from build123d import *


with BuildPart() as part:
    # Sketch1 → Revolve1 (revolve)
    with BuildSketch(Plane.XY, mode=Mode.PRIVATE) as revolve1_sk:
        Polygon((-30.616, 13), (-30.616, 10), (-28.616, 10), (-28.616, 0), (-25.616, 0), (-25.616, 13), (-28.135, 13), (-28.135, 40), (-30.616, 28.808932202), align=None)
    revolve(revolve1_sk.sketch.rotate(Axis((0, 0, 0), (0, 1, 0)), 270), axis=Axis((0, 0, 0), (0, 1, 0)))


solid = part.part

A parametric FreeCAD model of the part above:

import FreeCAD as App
import Part
import Sketcher
from FreeCAD import Vector
Q = App.Units.Quantity

doc = App.newDocument("Part")
params = doc.addObject("Spreadsheet::Sheet", "Params")
for row, (alias, value) in enumerate([
    ("sketch1_width", "2 mm"),
    ("sketch1_width2", "3 mm"),
    ("sketch1_height", "10 mm"),
    ("sketch1_height2", "13 mm"),
    ("sketch1_height3", "27 mm"),
    ("revolution_angle", "360 deg"),
], start=1):
    params.set(f"A{row}", alias)
    params.set(f"B{row}", "=" + value)
    params.setAlias(f"B{row}", alias)

body = doc.addObject("PartDesign::Body", "Body")

sketch1 = doc.addObject("Sketcher::SketchObject", "Sketch")
body.addObject(sketch1)
sketch1.AttachmentSupport = (doc.XY_Plane, [""])
sketch1.MapMode = "FlatFace"
sketch1.addGeometry(Part.LineSegment(Vector(-30.616, 10, 0), Vector(-28.616, 10, 0)), False)
sketch1.addGeometry(Part.LineSegment(Vector(-28.616, 10, 0), Vector(-28.616, 0, 0)), False)
sketch1.addGeometry(Part.LineSegment(Vector(-28.616, 0, 0), Vector(-25.616, 0, 0)), False)
sketch1.addGeometry(Part.LineSegment(Vector(-25.616, 0, 0), Vector(-25.616, 13, 0)), False)
sketch1.addGeometry(Part.LineSegment(Vector(-25.616, 13, 0), Vector(-28.135, 13, 0)), False)
sketch1.addGeometry(Part.LineSegment(Vector(-28.135, 13, 0), Vector(-28.135, 40, 0)), False)
sketch1.addGeometry(Part.LineSegment(Vector(-28.135, 40, 0), Vector(-30.616, 28.808932, 0)), False)
sketch1.addGeometry(Part.LineSegment(Vector(-30.616, 28.808932, 0), Vector(-30.616, 10, 0)), False)
sketch1.addConstraint(Sketcher.Constraint("Coincident", 0, 2, 1, 1))
sketch1.addConstraint(Sketcher.Constraint("Coincident", 1, 2, 2, 1))
sketch1.addConstraint(Sketcher.Constraint("Coincident", 2, 2, 3, 1))
sketch1.addConstraint(Sketcher.Constraint("Coincident", 3, 2, 4, 1))
sketch1.addConstraint(Sketcher.Constraint("Coincident", 4, 2, 5, 1))
sketch1.addConstraint(Sketcher.Constraint("Coincident", 5, 2, 6, 1))
sketch1.addConstraint(Sketcher.Constraint("Coincident", 6, 2, 7, 1))
sketch1.addConstraint(Sketcher.Constraint("Coincident", 7, 2, 0, 1))
sketch1.addConstraint(Sketcher.Constraint("Horizontal", 0))
sketch1.addConstraint(Sketcher.Constraint("Vertical", 1))
sketch1.addConstraint(Sketcher.Constraint("Horizontal", 2))
sketch1.addConstraint(Sketcher.Constraint("Vertical", 3))
sketch1.addConstraint(Sketcher.Constraint("Horizontal", 4))
sketch1.addConstraint(Sketcher.Constraint("Vertical", 5))
sketch1.addConstraint(Sketcher.Constraint("Vertical", 7))
sketch1.addConstraint(Sketcher.Constraint("PointOnObject", 1, 2, -1))
sketch1.addConstraint(Sketcher.Constraint("DistanceX", 0, 1, 0, 2, Q("2 mm")))
sketch1.addConstraint(Sketcher.Constraint("DistanceX", 2, 1, 2, 2, Q("3 mm")))
sketch1.addConstraint(Sketcher.Constraint("DistanceY", 1, 2, 1, 1, Q("10 mm")))
sketch1.addConstraint(Sketcher.Constraint("DistanceY", 3, 1, 3, 2, Q("13 mm")))
sketch1.addConstraint(Sketcher.Constraint("DistanceY", 5, 1, 5, 2, Q("27 mm")))
sketch1.addConstraint(Sketcher.Constraint("Angle", 6, Q("-102.5 deg")))
sketch1.addConstraint(Sketcher.Constraint("DistanceX", 4, 2, 4, 1, Q("2.519 mm")))
sketch1.addConstraint(Sketcher.Constraint("DistanceX", 0, 2, -1, 1, Q("28.616 mm")))
sketch1.setExpression("Constraints[16]", "Params.sketch1_width")
sketch1.setExpression("Constraints[17]", "Params.sketch1_width2")
sketch1.setExpression("Constraints[18]", "Params.sketch1_height")
sketch1.setExpression("Constraints[19]", "Params.sketch1_height2")
sketch1.setExpression("Constraints[20]", "Params.sketch1_height3")
revolution = doc.addObject("PartDesign::Revolution", "Revolution")
body.addObject(revolution)
revolution.Profile = sketch1
revolution.ReferenceAxis = (sketch1, ["V_Axis"])
revolution.setExpression("Angle", "Params.revolution_angle")

doc.recompute()
